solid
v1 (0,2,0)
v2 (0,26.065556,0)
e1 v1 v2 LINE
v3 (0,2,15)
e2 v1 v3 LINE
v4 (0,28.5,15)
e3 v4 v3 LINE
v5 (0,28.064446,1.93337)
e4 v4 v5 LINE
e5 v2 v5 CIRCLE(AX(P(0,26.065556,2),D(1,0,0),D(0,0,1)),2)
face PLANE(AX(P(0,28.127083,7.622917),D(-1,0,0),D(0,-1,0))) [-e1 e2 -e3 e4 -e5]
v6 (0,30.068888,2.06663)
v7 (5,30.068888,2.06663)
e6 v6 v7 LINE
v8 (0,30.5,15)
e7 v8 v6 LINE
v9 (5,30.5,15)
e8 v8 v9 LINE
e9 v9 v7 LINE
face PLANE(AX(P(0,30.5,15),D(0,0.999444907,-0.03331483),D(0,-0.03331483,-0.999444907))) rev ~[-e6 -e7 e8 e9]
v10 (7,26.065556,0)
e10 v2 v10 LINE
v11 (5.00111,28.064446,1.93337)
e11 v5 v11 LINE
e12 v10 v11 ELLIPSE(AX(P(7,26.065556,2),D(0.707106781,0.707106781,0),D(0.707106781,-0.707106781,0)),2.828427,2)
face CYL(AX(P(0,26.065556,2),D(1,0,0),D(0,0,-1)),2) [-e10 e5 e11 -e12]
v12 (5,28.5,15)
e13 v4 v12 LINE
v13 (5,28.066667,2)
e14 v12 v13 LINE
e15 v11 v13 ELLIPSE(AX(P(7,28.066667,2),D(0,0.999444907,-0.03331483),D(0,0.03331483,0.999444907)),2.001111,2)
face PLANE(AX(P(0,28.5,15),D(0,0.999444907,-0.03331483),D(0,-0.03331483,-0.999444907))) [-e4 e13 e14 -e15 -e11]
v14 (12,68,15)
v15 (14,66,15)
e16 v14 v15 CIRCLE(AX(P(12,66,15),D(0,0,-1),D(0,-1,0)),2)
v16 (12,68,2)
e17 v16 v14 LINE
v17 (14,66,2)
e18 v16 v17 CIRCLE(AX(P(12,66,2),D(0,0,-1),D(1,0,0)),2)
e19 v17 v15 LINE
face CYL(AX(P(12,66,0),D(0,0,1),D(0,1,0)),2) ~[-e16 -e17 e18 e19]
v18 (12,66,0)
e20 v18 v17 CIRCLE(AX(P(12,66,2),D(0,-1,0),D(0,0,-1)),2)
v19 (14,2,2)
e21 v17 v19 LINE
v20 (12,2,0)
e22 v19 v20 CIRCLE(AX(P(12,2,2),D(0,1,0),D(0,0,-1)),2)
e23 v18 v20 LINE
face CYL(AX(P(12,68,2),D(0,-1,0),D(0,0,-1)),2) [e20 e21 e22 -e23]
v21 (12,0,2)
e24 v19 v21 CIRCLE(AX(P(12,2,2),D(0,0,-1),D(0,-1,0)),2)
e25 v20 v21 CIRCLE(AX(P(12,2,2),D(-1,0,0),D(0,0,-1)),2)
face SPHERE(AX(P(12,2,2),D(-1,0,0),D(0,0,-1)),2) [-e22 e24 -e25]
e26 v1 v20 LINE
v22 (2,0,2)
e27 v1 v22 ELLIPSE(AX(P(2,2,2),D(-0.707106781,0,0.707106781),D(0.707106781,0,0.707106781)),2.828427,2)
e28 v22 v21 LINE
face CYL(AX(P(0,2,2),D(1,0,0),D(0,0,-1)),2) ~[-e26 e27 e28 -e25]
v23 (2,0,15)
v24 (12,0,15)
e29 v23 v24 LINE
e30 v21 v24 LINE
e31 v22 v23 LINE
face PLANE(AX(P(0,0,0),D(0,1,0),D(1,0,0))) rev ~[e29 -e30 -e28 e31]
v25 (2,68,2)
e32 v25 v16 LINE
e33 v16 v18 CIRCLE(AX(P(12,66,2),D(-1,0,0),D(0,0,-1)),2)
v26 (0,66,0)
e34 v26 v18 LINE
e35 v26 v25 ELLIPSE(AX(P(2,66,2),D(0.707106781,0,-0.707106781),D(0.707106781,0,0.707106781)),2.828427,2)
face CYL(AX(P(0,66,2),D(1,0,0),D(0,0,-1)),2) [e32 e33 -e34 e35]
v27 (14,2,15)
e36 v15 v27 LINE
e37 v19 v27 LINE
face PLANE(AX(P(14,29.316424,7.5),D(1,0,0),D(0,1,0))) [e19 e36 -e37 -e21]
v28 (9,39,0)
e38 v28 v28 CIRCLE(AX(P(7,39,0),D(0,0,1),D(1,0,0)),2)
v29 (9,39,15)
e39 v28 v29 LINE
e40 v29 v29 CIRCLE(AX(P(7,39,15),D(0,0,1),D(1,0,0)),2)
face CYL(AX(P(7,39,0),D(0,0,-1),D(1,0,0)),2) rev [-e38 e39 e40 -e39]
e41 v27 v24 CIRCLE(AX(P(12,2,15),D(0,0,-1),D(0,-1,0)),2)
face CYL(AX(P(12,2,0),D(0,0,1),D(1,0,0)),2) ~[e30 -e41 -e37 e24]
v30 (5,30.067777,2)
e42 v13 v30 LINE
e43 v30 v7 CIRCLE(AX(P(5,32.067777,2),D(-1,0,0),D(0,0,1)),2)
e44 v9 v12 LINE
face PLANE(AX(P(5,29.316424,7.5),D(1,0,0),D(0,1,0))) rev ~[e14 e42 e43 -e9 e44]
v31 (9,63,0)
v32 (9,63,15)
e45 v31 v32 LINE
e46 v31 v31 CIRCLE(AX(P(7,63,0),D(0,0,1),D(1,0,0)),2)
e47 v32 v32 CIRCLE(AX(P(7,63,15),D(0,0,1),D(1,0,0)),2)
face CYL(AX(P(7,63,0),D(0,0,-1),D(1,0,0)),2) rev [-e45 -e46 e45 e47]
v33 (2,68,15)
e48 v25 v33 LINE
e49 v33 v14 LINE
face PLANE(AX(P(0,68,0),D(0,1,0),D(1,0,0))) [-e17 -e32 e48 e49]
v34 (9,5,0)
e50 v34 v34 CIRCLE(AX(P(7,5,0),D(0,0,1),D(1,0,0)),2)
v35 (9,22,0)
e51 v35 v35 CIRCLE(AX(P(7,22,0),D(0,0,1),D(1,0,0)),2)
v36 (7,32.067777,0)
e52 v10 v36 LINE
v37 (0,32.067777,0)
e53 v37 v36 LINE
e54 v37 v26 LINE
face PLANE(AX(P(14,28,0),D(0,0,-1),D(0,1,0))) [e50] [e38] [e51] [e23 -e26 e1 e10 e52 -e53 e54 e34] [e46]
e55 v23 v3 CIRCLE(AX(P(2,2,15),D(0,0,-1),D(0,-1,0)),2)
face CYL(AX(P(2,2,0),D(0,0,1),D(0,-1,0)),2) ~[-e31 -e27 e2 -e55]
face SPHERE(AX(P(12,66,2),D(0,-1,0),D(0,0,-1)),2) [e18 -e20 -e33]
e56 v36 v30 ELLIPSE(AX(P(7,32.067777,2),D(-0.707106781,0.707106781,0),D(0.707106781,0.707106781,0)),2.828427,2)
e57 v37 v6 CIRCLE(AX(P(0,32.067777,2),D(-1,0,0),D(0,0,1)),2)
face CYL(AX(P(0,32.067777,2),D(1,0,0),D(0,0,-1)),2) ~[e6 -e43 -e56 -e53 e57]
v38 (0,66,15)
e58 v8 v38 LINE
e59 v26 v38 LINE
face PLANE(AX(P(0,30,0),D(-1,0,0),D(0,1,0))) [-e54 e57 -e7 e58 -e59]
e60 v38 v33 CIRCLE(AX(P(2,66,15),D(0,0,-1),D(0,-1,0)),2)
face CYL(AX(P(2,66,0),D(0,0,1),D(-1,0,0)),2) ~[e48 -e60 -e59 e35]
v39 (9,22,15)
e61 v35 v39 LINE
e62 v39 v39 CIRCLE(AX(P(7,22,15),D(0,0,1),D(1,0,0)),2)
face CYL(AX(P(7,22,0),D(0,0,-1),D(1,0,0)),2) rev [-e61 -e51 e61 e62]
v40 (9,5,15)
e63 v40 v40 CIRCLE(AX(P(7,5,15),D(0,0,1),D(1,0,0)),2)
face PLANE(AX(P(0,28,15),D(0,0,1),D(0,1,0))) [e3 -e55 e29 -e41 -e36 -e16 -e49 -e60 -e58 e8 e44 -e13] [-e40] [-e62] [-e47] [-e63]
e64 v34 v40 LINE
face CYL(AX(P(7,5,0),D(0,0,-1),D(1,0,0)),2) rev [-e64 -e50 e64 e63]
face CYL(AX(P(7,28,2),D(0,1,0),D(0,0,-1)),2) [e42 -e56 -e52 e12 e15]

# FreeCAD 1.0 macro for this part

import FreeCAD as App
import Part
import Sketcher


def edges_at(feature, points):
    """Names of the edges that pass closest to the given points."""
    edges = feature.Shape.Edges
    near = lambda p: min(range(len(edges)), key=lambda i: edges[i].distToShape(Part.Vertex(*p))[0])
    return sorted({f"Edge{near(p) + 1}" for p in points})

doc = App.newDocument("Part")
params = doc.addObject("Spreadsheet::Sheet", "Params")
for row, (alias, value) in enumerate([
    ("sketch1_diameter", "4 mm"),
    ("sketch1_width", "14 mm"),
    ("sketch1_height", "28 mm"),
    ("pad1_length", "15 mm"),
    ("sketch2_diameter", "4 mm"),
    ("sketch2_width", "14 mm"),
    ("sketch2_height", "38 mm"),
    ("pad2_length", "15 mm"),
    ("sketch3_height", "15 mm"),
    ("pad3_length", "9 mm"),
    ("sketch4_height", "15 mm"),
    ("sketch4_width", "0.5 mm"),
    ("pad4_length", "5 mm"),
    ("sketch5_height", "15 mm"),
    ("sketch5_width", "0.5 mm"),
    ("pocket1_length", "5 mm"),
    ("fillet_radius", "2 mm"),
], start=1):
    params.set(f"A{row}", alias)
    params.set(f"B{row}", "=" + value)
    params.setAlias(f"B{row}", alias)

body = doc.addObject("PartDesign::Body", "Body")

# Sketch on XY plane
sketch1 = body.newObject("Sketcher::SketchObject", "Sketch")
sketch1.AttachmentSupport = (doc.getObject("XY_Plane"), [""])
sketch1.MapMode = "FlatFace"
sketch1.addGeometry(Part.LineSegment(App.Vector(0, 28, 0), App.Vector(0, 0, 0)), False)
sketch1.addGeometry(Part.LineSegment(App.Vector(0, 0, 0), App.Vector(14, 0, 0)), False)
sketch1.addGeometry(Part.LineSegment(App.Vector(14, 0, 0), App.Vector(14, 28, 0)), False)
sketch1.addGeometry(Part.LineSegment(App.Vector(14, 28, 0), App.Vector(0, 28, 0)), False)
sketch1.addGeometry(Part.Circle(App.Vector(7, 5, 0), App.Vector(0, 0, 1), 2), False)
sketch1.addGeometry(Part.Circle(App.Vector(7, 22, 0), App.Vector(0, 0, 1), 2), False)
sketch1.addConstraint(Sketcher.Constraint("Coincident", 0, 2, 1, 1))
sketch1.addConstraint(Sketcher.Constraint("Coincident", 1, 2, 2, 1))
sketch1.addConstraint(Sketcher.Constraint("Coincident", 2, 2, 3, 1))
sketch1.addConstraint(Sketcher.Constraint("Coincident", 3, 2, 0, 1))
sketch1.addConstraint(Sketcher.Constraint("Vertical", 0))
sketch1.addConstraint(Sketcher.Constraint("Horizontal", 1))
sketch1.addConstraint(Sketcher.Constraint("Vertical", 2))
sketch1.addConstraint(Sketcher.Constraint("Horizontal", 3))
sketch1.addConstraint(Sketcher.Constraint("Coincident", 0, 2, -1, 1))
sketch1.addConstraint(Sketcher.Constraint("Equal", 4, 5))
sketch1.addConstraint(Sketcher.Constraint("Vertical", 4, 3, 5, 3))
sketch1.addConstraint(Sketcher.Constraint("Diameter", 4, 4.0))
sketch1.addConstraint(Sketcher.Constraint("DistanceX", 1, 1, 1, 2, 14.0))
sketch1.addConstraint(Sketcher.Constraint("DistanceY", 0, 2, 0, 1, 28.0))
sketch1.addConstraint(Sketcher.Constraint("DistanceX", -1, 1, 4, 3, 7.0))
sketch1.addConstraint(Sketcher.Constraint("DistanceY", -1, 1, 4, 3, 5.0))
sketch1.addConstraint(Sketcher.Constraint("DistanceY", -1, 1, 5, 3, 22.0))
sketch1.setExpression("Constraints[11]", "Params.sketch1_diameter")
sketch1.setExpression("Constraints[12]", "Params.sketch1_width")
sketch1.setExpression("Constraints[13]", "Params.sketch1_height")
pad1 = body.newObject("PartDesign::Pad", "Pad")
pad1.Profile = sketch1
pad1.setExpression("Length", "Params.pad1_length")
body2 = doc.addObject("PartDesign::Body", "Body001")

# Sketch on XY plane
sketch2 = body2.newObject("Sketcher::SketchObject", "Sketch001")
sketch2.AttachmentSupport = (doc.getObject("XY_Plane001"), [""])
sketch2.MapMode = "FlatFace"
sketch2.addGeometry(Part.LineSegment(App.Vector(0, 68, 0), App.Vector(0, 30, 0)), False)
sketch2.addGeometry(Part.LineSegment(App.Vector(0, 30, 0), App.Vector(14, 30, 0)), False)
sketch2.addGeometry(Part.LineSegment(App.Vector(14, 30, 0), App.Vector(14, 68, 0)), False)
sketch2.addGeometry(Part.LineSegment(App.Vector(14, 68, 0), App.Vector(0, 68, 0)), False)
sketch2.addGeometry(Part.Circle(App.Vector(7, 39, 0), App.Vector(0, 0, 1), 2), False)
sketch2.addGeometry(Part.Circle(App.Vector(7, 63, 0), App.Vector(0, 0, 1), 2), False)
sketch2.addConstraint(Sketcher.Constraint("Coincident", 0, 2, 1, 1))
sketch2.addConstraint(Sketcher.Constraint("Coincident", 1, 2, 2, 1))
sketch2.addConstraint(Sketcher.Constraint("Coincident", 2, 2, 3, 1))
sketch2.addConstraint(Sketcher.Constraint("Coincident", 3, 2, 0, 1))
sketch2.addConstraint(Sketcher.Constraint("Vertical", 0))
sketch2.addConstraint(Sketcher.Constraint("Horizontal", 1))
sketch2.addConstraint(Sketcher.Constraint("Vertical", 2))
sketch2.addConstraint(Sketcher.Constraint("Horizontal", 3))
sketch2.addConstraint(Sketcher.Constraint("Equal", 4, 5))
sketch2.addConstraint(Sketcher.Constraint("PointOnObject", 0, 2, -2))
sketch2.addConstraint(Sketcher.Constraint("Vertical", 4, 3, 5, 3))
sketch2.addConstraint(Sketcher.Constraint("Diameter", 4, 4.0))
sketch2.addConstraint(Sketcher.Constraint("DistanceX", 1, 1, 1, 2, 14.0))
sketch2.addConstraint(Sketcher.Constraint("DistanceY", 0, 2, 0, 1, 38.0))
sketch2.addConstraint(Sketcher.Constraint("DistanceX", -1, 1, 4, 3, 7.0))
sketch2.addConstraint(Sketcher.Constraint("DistanceY", -1, 1, 4, 3, 39.0))
sketch2.addConstraint(Sketcher.Constraint("DistanceY", -1, 1, 5, 3, 63.0))
sketch2.addConstraint(Sketcher.Constraint("DistanceY", -1, 1, 0, 2, 30.0))
sketch2.setExpression("Constraints[11]", "Params.sketch2_diameter")
sketch2.setExpression("Constraints[12]", "Params.sketch2_width")
sketch2.setExpression("Constraints[13]", "Params.sketch2_height")
pad2 = body2.newObject("PartDesign::Pad", "Pad001")
pad2.Profile = sketch2
pad2.setExpression("Length", "Params.pad2_length")
body.AllowCompound = True
doc.recompute()

boolean = body.newObject("PartDesign::Boolean", "Boolean")
boolean.Type = "Fuse"
boolean.addObjects([body2])

# Sketch on YZ plane
sketch3 = body.newObject("Sketcher::SketchObject", "Sketch002")
sketch3.AttachmentSupport = (doc.getObject("YZ_Plane"), [""])
sketch3.MapMode = "FlatFace"
sketch3.AttachmentOffset = App.Placement(App.Vector(0, 0, 14), App.Rotation())
sketch3.addGeometry(Part.LineSegment(App.Vector(28, 15, 0), App.Vector(28, 0, 0)), False)
sketch3.addGeometry(Part.LineSegment(App.Vector(28, 0, 0), App.Vector(30.632848, 0, 0)), False)
sketch3.addGeometry(Part.LineSegment(App.Vector(30.632848, 0, 0), App.Vector(30.632848, 15, 0)), False)
sketch3.addGeometry(Part.LineSegment(App.Vector(30.632848, 15, 0), App.Vector(28, 15, 0)), False)
sketch3.addConstraint(Sketcher.Constraint("Coincident", 0, 2, 1, 1))
sketch3.addConstraint(Sketcher.Constraint("Coincident", 1, 2, 2, 1))
sketch3.addConstraint(Sketcher.Constraint("Coincident", 2, 2, 3, 1))
sketch3.addConstraint(Sketcher.Constraint("Coincident", 3, 2, 0, 1))
sketch3.addConstraint(Sketcher.Constraint("Vertical", 0))
sketch3.addConstraint(Sketcher.Constraint("Horizontal", 1))
sketch3.addConstraint(Sketcher.Constraint("Vertical", 2))
sketch3.addConstraint(Sketcher.Constraint("Horizontal", 3))
sketch3.addConstraint(Sketcher.Constraint("PointOnObject", 0, 2, -1))
sketch3.addConstraint(Sketcher.Constraint("DistanceY", 0, 2, 0, 1, 15.0))
sketch3.addConstraint(Sketcher.Constraint("DistanceX", -1, 1, 0, 2, 28.0))
sketch3.addConstraint(Sketcher.Constraint("DistanceX", 1, 1, 1, 2, 2.632848))
sketch3.setExpression("Constraints[9]", "Params.sketch3_height")
pad3 = body.newObject("PartDesign::Pad", "Pad002")
pad3.Profile = sketch3
pad3.setExpression("Length", "Params.pad3_length")
pad3.Reversed = True

# Sketch on YZ plane
sketch4 = body.newObject("Sketcher::SketchObject", "Sketch003")
sketch4.AttachmentSupport = (doc.getObject("YZ_Plane"), [""])
sketch4.MapMode = "FlatFace"
sketch4.addGeometry(Part.LineSegment(App.Vector(28, 0, 0), App.Vector(28, 15, 0)), False)
sketch4.addGeometry(Part.LineSegment(App.Vector(28, 15, 0), App.Vector(28.5, 15, 0)), False)
sketch4.addGeometry(Part.LineSegment(App.Vector(28.5, 15, 0), App.Vector(28, 0, 0)), False)
sketch4.addConstraint(Sketcher.Constraint("Coincident", 0, 2, 1, 1))
sketch4.addConstraint(Sketcher.Constraint("Coincident", 1, 2, 2, 1))
sketch4.addConstraint(Sketcher.Constraint("Coincident", 2, 2, 0, 1))
sketch4.addConstraint(Sketcher.Constraint("Vertical", 0))
sketch4.addConstraint(Sketcher.Constraint("Horizontal", 1))
sketch4.addConstraint(Sketcher.Constraint("PointOnObject", 2, 2, -1))
sketch4.addConstraint(Sketcher.Constraint("DistanceY", 0, 1, 0, 2, 15.0))
sketch4.addConstraint(Sketcher.Constraint("DistanceX", 1, 1, 1, 2, 0.5))
sketch4.addConstraint(Sketcher.Constraint("DistanceX", -1, 1, 0, 2, 28.0))
sketch4.setExpression("Constraints[6]", "Params.sketch4_height")
sketch4.setExpression("Constraints[7]", "Params.sketch4_width")
pad4 = body.newObject("PartDesign::Pad", "Pad003")
pad4.Profile = sketch4
pad4.setExpression("Length", "Params.pad4_length")

# Sketch on YZ plane
sketch5 = body.newObject("Sketcher::SketchObject", "Sketch004")
sketch5.AttachmentSupport = (doc.getObject("YZ_Plane"), [""])
sketch5.MapMode = "FlatFace"
sketch5.addGeometry(Part.LineSegment(App.Vector(30, 0, 0), App.Vector(30, 15, 0)), False)
sketch5.addGeometry(Part.LineSegment(App.Vector(30, 15, 0), App.Vector(30.5, 15, 0)), False)
sketch5.addGeometry(Part.LineSegment(App.Vector(30.5, 15, 0), App.Vector(30, 0, 0)), False)
sketch5.addConstraint(Sketcher.Constraint("Coincident", 0, 2, 1, 1))
sketch5.addConstraint(Sketcher.Constraint("Coincident", 1, 2, 2, 1))
sketch5.addConstraint(Sketcher.Constraint("Coincident", 2, 2, 0, 1))
sketch5.addConstraint(Sketcher.Constraint("Vertical", 0))
sketch5.addConstraint(Sketcher.Constraint("Horizontal", 1))
sketch5.addConstraint(Sketcher.Constraint("PointOnObject", 2, 2, -1))
sketch5.addConstraint(Sketcher.Constraint("DistanceY", 0, 1, 0, 2, 15.0))
sketch5.addConstraint(Sketcher.Constraint("DistanceX", 1, 1, 1, 2, 0.5))
sketch5.addConstraint(Sketcher.Constraint("DistanceX", -1, 1, 0, 2, 30.0))
sketch5.setExpression("Constraints[6]", "Params.sketch5_height")
sketch5.setExpression("Constraints[7]", "Params.sketch5_width")
pocket1 = body.newObject("PartDesign::Pocket", "Pocket")
pocket1.Profile = sketch5
pocket1.setExpression("Length", "Params.pocket1_length")
pocket1.Reversed = True
doc.recompute()

fillet = body.newObject("PartDesign::Fillet", "Fillet")
fillet.Base = (pocket1, edges_at(pocket1, [
    (2.5, 30, 0),
    (5, 29, 0),
    (2.5, 28, 0),
    (7, 0, 0),
    (14, 34, 0),
    (7, 68, 0),
    (0, 68, 7.5),
    (14, 68, 7.5),
    (0, 0, 7.5),
    (14, 0, 7.5),
]))
fillet.setExpression("Radius", "Params.fillet_radius")

doc.recompute()
